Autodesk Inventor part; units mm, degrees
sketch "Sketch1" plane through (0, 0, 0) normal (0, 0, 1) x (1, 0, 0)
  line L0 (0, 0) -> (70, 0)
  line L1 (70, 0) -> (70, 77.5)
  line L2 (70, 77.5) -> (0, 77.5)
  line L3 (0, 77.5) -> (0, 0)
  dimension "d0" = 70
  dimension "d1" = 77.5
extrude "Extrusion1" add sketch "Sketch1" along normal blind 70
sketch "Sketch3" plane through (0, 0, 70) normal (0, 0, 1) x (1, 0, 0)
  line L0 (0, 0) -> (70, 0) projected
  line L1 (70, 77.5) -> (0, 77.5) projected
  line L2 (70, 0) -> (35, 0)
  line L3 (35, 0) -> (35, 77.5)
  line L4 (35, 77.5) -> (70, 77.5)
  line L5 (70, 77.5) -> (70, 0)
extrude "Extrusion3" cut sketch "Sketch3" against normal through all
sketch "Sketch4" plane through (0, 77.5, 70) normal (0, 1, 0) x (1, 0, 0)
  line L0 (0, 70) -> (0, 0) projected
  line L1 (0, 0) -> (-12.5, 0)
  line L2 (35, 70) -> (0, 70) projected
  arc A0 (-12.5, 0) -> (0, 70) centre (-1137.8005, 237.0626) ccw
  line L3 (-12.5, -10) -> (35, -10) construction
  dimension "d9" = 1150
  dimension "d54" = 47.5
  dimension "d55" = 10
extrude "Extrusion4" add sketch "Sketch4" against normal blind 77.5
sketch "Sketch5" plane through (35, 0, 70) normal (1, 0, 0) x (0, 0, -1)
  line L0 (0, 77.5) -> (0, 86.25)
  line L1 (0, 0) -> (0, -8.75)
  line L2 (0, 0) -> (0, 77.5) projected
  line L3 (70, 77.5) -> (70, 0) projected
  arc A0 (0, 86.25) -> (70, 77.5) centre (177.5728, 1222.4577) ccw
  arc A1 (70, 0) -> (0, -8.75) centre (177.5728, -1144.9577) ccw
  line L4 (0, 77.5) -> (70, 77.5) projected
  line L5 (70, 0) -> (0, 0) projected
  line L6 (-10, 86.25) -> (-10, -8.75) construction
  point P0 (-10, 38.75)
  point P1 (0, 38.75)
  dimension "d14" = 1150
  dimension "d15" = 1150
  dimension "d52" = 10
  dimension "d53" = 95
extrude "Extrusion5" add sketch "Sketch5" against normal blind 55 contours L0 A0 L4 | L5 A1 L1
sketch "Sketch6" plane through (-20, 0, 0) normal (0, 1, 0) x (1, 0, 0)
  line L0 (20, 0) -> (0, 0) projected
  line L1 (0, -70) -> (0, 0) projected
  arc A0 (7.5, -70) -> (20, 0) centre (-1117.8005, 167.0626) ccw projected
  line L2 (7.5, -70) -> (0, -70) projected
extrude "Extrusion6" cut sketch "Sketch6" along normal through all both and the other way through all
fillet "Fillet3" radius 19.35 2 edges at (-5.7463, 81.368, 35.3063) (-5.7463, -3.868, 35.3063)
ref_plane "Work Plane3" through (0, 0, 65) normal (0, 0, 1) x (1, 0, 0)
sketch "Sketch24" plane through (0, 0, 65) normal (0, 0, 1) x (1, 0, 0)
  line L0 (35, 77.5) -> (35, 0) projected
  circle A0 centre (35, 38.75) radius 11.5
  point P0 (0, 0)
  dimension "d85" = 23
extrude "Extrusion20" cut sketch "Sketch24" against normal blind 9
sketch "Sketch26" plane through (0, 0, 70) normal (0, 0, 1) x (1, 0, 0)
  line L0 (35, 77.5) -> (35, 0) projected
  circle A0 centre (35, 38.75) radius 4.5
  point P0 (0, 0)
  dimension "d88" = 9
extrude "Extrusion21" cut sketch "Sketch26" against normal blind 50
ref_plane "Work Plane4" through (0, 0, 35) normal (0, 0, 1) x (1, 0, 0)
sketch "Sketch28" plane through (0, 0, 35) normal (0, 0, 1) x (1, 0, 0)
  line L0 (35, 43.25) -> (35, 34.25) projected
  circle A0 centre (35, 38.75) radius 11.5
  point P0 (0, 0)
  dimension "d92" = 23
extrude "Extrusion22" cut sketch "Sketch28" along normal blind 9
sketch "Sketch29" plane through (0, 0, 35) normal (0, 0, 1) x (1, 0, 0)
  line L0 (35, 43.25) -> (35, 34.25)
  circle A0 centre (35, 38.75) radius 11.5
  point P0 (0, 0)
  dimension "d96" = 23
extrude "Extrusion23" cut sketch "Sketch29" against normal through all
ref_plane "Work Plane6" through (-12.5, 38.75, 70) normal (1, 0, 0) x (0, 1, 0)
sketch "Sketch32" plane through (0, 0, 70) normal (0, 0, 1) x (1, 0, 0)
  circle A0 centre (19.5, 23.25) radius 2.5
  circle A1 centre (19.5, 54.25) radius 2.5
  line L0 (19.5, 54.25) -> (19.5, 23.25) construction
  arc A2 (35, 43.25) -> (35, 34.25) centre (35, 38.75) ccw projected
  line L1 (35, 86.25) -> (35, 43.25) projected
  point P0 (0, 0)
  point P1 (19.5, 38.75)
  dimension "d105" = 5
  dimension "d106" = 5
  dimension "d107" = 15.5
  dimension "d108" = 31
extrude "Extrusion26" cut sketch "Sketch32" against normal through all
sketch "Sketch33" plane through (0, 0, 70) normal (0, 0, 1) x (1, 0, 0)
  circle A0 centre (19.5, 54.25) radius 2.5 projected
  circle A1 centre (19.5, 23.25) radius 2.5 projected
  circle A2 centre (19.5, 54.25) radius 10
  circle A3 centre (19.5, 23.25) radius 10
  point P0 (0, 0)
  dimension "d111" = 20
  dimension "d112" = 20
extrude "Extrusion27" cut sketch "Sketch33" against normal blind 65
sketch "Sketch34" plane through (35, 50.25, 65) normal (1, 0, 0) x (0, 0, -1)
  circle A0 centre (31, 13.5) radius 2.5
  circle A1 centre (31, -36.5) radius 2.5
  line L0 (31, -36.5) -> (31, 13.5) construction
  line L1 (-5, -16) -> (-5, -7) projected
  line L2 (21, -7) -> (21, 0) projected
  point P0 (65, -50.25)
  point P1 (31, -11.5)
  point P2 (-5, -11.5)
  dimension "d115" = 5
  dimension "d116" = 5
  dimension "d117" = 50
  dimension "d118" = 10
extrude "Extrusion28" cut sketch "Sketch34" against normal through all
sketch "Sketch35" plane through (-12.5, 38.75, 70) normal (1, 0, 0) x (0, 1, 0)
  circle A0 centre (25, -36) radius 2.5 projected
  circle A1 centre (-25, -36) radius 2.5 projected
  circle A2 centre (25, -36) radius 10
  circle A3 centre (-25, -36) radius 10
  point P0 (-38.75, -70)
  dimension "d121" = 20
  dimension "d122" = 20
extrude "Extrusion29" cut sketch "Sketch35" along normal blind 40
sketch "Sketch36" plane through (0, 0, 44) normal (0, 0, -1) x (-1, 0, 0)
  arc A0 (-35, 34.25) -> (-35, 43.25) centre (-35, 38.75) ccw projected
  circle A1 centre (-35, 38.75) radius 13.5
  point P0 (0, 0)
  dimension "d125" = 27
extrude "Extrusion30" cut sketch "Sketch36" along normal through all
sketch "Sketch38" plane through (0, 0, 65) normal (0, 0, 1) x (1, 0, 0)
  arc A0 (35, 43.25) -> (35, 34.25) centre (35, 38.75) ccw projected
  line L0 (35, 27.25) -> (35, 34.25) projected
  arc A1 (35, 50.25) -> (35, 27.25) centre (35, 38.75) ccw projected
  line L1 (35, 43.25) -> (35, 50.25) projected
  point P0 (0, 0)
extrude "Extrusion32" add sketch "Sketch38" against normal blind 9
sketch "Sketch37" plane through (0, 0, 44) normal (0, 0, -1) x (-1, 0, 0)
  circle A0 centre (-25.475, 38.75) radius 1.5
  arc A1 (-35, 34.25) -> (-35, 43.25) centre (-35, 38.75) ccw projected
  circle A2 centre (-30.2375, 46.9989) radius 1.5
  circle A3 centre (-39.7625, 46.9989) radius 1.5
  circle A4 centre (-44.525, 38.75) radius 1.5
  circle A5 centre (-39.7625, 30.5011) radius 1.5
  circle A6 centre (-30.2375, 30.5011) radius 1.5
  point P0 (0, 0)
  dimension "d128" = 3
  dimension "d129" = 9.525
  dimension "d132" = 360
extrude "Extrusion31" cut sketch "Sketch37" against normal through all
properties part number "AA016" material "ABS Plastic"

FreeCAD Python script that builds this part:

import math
import FreeCAD as App
import Part
import Sketcher
from FreeCAD import Vector
Q = App.Units.Quantity


def edges_at(feature, points):
    """Names of the edges that pass closest to the given points."""
    edges = feature.Shape.Edges
    near = lambda p: min(range(len(edges)), key=lambda i: edges[i].distToShape(Part.Vertex(*p))[0])
    return sorted({f"Edge{near(p) + 1}" for p in points})


def add_polygon(sketch, points):
    """Adds a closed chain of lines whose ends are joined by coincident constraints."""
    first, n = sketch.GeometryCount, len(points)
    for a, b in zip(points, points[1:] + points[:1]):
        sketch.addGeometry(Part.LineSegment(App.Vector(*a, 0), App.Vector(*b, 0)), False)
    for i in range(n):
        sketch.addConstraint(Sketcher.Constraint("Coincident", first + i, 2, first + (i + 1) % n, 1))

doc = App.newDocument("Part")
params = doc.addObject("Spreadsheet::Sheet", "Params")
for row, (alias, value) in enumerate([
    ("sketch1_width", "70 mm"),
    ("sketch1_height", "77.5 mm"),
    ("pad1_length", "70 mm"),
    ("sketch2_width", "35 mm"),
    ("sketch2_height", "77.5 mm"),
    ("sketch3_radius", "1150 mm"),
    ("sketch3_height", "70 mm"),
    ("sketch3_width", "12.5 mm"),
    ("pad2_length", "77.5 mm"),
    ("sketch4_height", "70 mm"),
    ("sketch4_width", "8.75 mm"),
    ("pad3_length", "55 mm"),
    ("sketch5_radius", "1150 mm"),
    ("sketch5_width", "20 mm"),
    ("sketch5_height", "70 mm"),
    ("sketch5_width2", "7.5 mm"),
    ("fillet_radius", "19.35 mm"),
    ("sketch6_diameter", "23 mm"),
    ("pocket3_length", "9 mm"),
    ("sketch7_diameter", "9 mm"),
    ("pocket4_length", "50 mm"),
    ("sketch8_diameter", "23 mm"),
    ("pocket5_length", "9 mm"),
    ("sketch9_diameter", "23 mm"),
    ("sketch10_diameter", "5 mm"),
    ("sketch11_diameter", "20 mm"),
    ("sketch11_diameter2", "5 mm"),
    ("pocket8_length", "65 mm"),
    ("sketch12_diameter", "5 mm"),
    ("sketch13_diameter", "20 mm"),
    ("sketch13_diameter2", "5 mm"),
    ("pocket10_length", "40 mm"),
    ("sketch14_diameter", "27 mm"),
    ("sketch15_radius", "4.5 mm"),
    ("sketch15_radius2", "11.5 mm"),
    ("pad4_length", "9 mm"),
    ("sketch16_diameter", "3 mm"),
], start=1):
    params.set(f"A{row}", alias)
    params.set(f"B{row}", "=" + value)
    params.setAlias(f"B{row}", alias)

body = doc.addObject("PartDesign::Body", "Body")

# Sketch on XY plane
sketch1 = body.newObject("Sketcher::SketchObject", "Sketch")
sketch1.AttachmentSupport = (doc.getObject("XY_Plane"), [""])
sketch1.MapMode = "FlatFace"
add_polygon(sketch1, [(0, 78), (0, 0), (70, 0), (70, 78)])  # lines 0-3
sketch1.addConstraint([
    Sketcher.Constraint("Vertical", 0),
    Sketcher.Constraint("Horizontal", 1),
    Sketcher.Constraint("Vertical", 2),
    Sketcher.Constraint("Horizontal", 3),
    Sketcher.Constraint("Coincident", 0, 2, -1, 1),
    Sketcher.Constraint("DistanceX", 1, 1, 1, 2, Q("70 mm")),
    Sketcher.Constraint("DistanceY", 0, 2, 0, 1, Q("77.5 mm")),
])
sketch1.setExpression("Constraints[9]", "Params.sketch1_width")
sketch1.setExpression("Constraints[10]", "Params.sketch1_height")
pad1 = body.newObject("PartDesign::Pad", "Pad")
pad1.Profile = sketch1
pad1.setExpression("Length", "Params.pad1_length")

# Sketch on XY plane
sketch2 = body.newObject("Sketcher::SketchObject", "Sketch001")
sketch2.AttachmentSupport = (doc.getObject("XY_Plane"), [""])
sketch2.MapMode = "FlatFace"
sketch2.AttachmentOffset = App.Placement(Vector(0, 0, 70), App.Rotation())
add_polygon(sketch2, [(35, 78), (35, 0), (70, 0), (70, 78)])  # lines 0-3
sketch2.addConstraint([
    Sketcher.Constraint("Vertical", 0),
    Sketcher.Constraint("Horizontal", 1),
    Sketcher.Constraint("Vertical", 2),
    Sketcher.Constraint("Horizontal", 3),
    Sketcher.Constraint("PointOnObject", 0, 2, -1),
    Sketcher.Constraint("DistanceX", 1, 1, 1, 2, Q("35 mm")),
    Sketcher.Constraint("DistanceY", 0, 2, 0, 1, Q("77.5 mm")),
    Sketcher.Constraint("DistanceX", -1, 1, 0, 2, Q("35 mm")),
])
sketch2.setExpression("Constraints[9]", "Params.sketch2_width")
sketch2.setExpression("Constraints[10]", "Params.sketch2_height")
pocket1 = body.newObject("PartDesign::Pocket", "Pocket")
pocket1.Profile = sketch2
pocket1.Type = "ThroughAll"

# Sketch on XZ plane
sketch3 = body.newObject("Sketcher::SketchObject", "Sketch002")
sketch3.AttachmentSupport = (doc.getObject("XZ_Plane"), [""])
sketch3.MapMode = "FlatFace"
sketch3.AttachmentOffset = App.Placement(Vector(0, 0, -77.5), App.Rotation())
sketch3.addGeometry([
    Part.LineSegment(Vector(0, 70, 0), Vector(0, 0, 0)),
    Part.ArcOfCircle(Part.Circle(Vector(-1138, -167, 0), Vector(0, 0, 1), 1150), math.radians(8.35), math.radians(11.9)),
    Part.LineSegment(Vector(-12, 70, 0), Vector(0, 70, 0)),
], False)
sketch3.addConstraint([
    Sketcher.Constraint("Coincident", 0, 2, 1, 1),
    Sketcher.Constraint("Coincident", 1, 2, 2, 1),
    Sketcher.Constraint("Coincident", 2, 2, 0, 1),
    Sketcher.Constraint("Vertical", 0),
    Sketcher.Constraint("Horizontal", 2),
    Sketcher.Constraint("Coincident", 0, 2, -1, 1),
    Sketcher.Constraint("Radius", 1, Q("1150 mm")),
    Sketcher.Constraint("DistanceY", 0, 2, 0, 1, Q("70 mm")),
    Sketcher.Constraint("DistanceX", 2, 1, 2, 2, Q("12.5 mm")),
])
sketch3.setExpression("Constraints[6]", "Params.sketch3_radius")
sketch3.setExpression("Constraints[7]", "Params.sketch3_height")
sketch3.setExpression("Constraints[8]", "Params.sketch3_width")
pad2 = body.newObject("PartDesign::Pad", "Pad001")
pad2.Profile = sketch3
pad2.setExpression("Length", "Params.pad2_length")

# Sketch on YZ plane
sketch4 = body.newObject("Sketcher::SketchObject", "Sketch003")
sketch4.AttachmentSupport = (doc.getObject("YZ_Plane"), [""])
sketch4.MapMode = "FlatFace"
sketch4.AttachmentOffset = App.Placement(Vector(0, 0, 35), App.Rotation())
sketch4.addGeometry([
    Part.LineSegment(Vector(86, 70, 0), Vector(78, 70, 0)),  # 0
    Part.LineSegment(Vector(78, 70, 0), Vector(78, 0, 0)),  # 1
    Part.ArcOfCircle(Part.Circle(Vector(1222, -108, 0), Vector(0, 0, 1), 1150), math.radians(171.12), math.radians(174.63)),  # 2
    Part.LineSegment(Vector(0, 0, 0), Vector(0, 70, 0)),  # 3
    Part.LineSegment(Vector(0, 70, 0), Vector(-9, 70, 0)),  # 4
    Part.ArcOfCircle(Part.Circle(Vector(-1145, -108, 0), Vector(0, 0, 1), 1150), math.radians(5.37), math.radians(8.88)),  # 5
], False)
sketch4.addConstraint([
    Sketcher.Constraint("Coincident", 0, 2, 1, 1),
    Sketcher.Constraint("Coincident", 1, 2, 2, 2),
    Sketcher.Constraint("Coincident", 2, 1, 0, 1),
    Sketcher.Constraint("Coincident", 3, 2, 4, 1),
    Sketcher.Constraint("Coincident", 4, 2, 5, 2),
    Sketcher.Constraint("Coincident", 5, 1, 3, 1),
    Sketcher.Constraint("Horizontal", 0),
    Sketcher.Constraint("Vertical", 1),
    Sketcher.Constraint("Vertical", 3),
    Sketcher.Constraint("Horizontal", 4),
    Sketcher.Constraint("PointOnObject", 1, 2, -1),
    Sketcher.Constraint("PointOnObject", 3, 2, -2),
    Sketcher.Constraint("Equal", 0, 4),
    Sketcher.Constraint("Equal", 1, 3),
    Sketcher.Constraint("DistanceX", 4, 2, 2, 1, Q("95 mm")),
    Sketcher.Constraint("DistanceY", 1, 2, 1, 1, Q("70 mm")),
    Sketcher.Constraint("DistanceY", -1, 1, 3, 2, Q("70 mm")),
    Sketcher.Constraint("DistanceX", 0, 2, 0, 1, Q("8.75 mm")),
    Sketcher.Constraint("Radius", 2, Q("1150.0024 mm")),
    Sketcher.Constraint("Radius", 5, Q("1149.9976 mm")),
])
sketch4.setExpression("Constraints[15]", "Params.sketch4_height")
sketch4.setExpression("Constraints[17]", "Params.sketch4_width")
pad3 = body.newObject("PartDesign::Pad", "Pad002")
pad3.Profile = sketch4
pad3.setExpression("Length", "Params.pad3_length")
pad3.Reversed = True

# Sketch on XZ plane
sketch5 = body.newObject("Sketcher::SketchObject", "Sketch004")
sketch5.AttachmentSupport = (doc.getObject("XZ_Plane"), [""])
sketch5.MapMode = "FlatFace"
sketch5.addGeometry([
    Part.ArcOfCircle(Part.Circle(Vector(-1138, -167, 0), Vector(0, 0, 1), 1150), math.radians(8.35), math.radians(11.9)),
    Part.LineSegment(Vector(0, 0, 0), Vector(-20, 0, 0)),
    Part.LineSegment(Vector(-20, 0, 0), Vector(-20, 70, 0)),
    Part.LineSegment(Vector(-20, 70, 0), Vector(-12, 70, 0)),
], False)
sketch5.addConstraint([
    Sketcher.Constraint("Coincident", 0, 1, 1, 1),
    Sketcher.Constraint("Coincident", 1, 2, 2, 1),
    Sketcher.Constraint("Coincident", 2, 2, 3, 1),
    Sketcher.Constraint("Coincident", 3, 2, 0, 2),
    Sketcher.Constraint("Horizontal", 1),
    Sketcher.Constraint("Vertical", 2),
    Sketcher.Constraint("Horizontal", 3),
    Sketcher.Constraint("PointOnObject", 1, 2, -1),
    Sketcher.Constraint("Radius", 0, Q("1150 mm")),
    Sketcher.Constraint("DistanceX", 1, 2, 1, 1, Q("20 mm")),
    Sketcher.Constraint("DistanceY", 2, 1, 2, 2, Q("70 mm")),
    Sketcher.Constraint("DistanceX", 3, 1, 3, 2, Q("7.5 mm")),
    Sketcher.Constraint("DistanceX", 1, 2, -1, 1, Q("20 mm")),
])
sketch5.setExpression("Constraints[8]", "Params.sketch5_radius")
sketch5.setExpression("Constraints[9]", "Params.sketch5_width")
sketch5.setExpression("Constraints[10]", "Params.sketch5_height")
sketch5.setExpression("Constraints[11]", "Params.sketch5_width2")
pocket2 = body.newObject("PartDesign::Pocket", "Pocket001")
pocket2.Profile = sketch5
pocket2.Type = "ThroughAll"
pocket2.Midplane = True
doc.recompute()

fillet = body.newObject("PartDesign::Fillet", "Fillet")
fillet.Base = (pocket2, edges_at(pocket2, [(-5.746, 81.368, 35.306), (-5.746, -3.868, 35.306)]))
fillet.setExpression("Radius", "Params.fillet_radius")

# Sketch on XY plane
sketch6 = body.newObject("Sketcher::SketchObject", "Sketch005")
sketch6.AttachmentSupport = (doc.getObject("XY_Plane"), [""])
sketch6.MapMode = "FlatFace"
sketch6.AttachmentOffset = App.Placement(Vector(0, 0, 65), App.Rotation())
sketch6.addGeometry(Part.Circle(Vector(35, 39, 0), Vector(0, 0, 1), 12), False)
sketch6.addConstraint([
    Sketcher.Constraint("Diameter", 0, Q("23 mm")),
    Sketcher.Constraint("DistanceX", -1, 1, 0, 3, Q("35 mm")),
    Sketcher.Constraint("DistanceY", -1, 1, 0, 3, Q("38.75 mm")),
])
sketch6.setExpression("Constraints[0]", "Params.sketch6_diameter")
pocket3 = body.newObject("PartDesign::Pocket", "Pocket002")
pocket3.Profile = sketch6
pocket3.setExpression("Length", "Params.pocket3_length")

# Sketch on XY plane
sketch7 = body.newObject("Sketcher::SketchObject", "Sketch006")
sketch7.AttachmentSupport = (doc.getObject("XY_Plane"), [""])
sketch7.MapMode = "FlatFace"
sketch7.AttachmentOffset = App.Placement(Vector(0, 0, 70), App.Rotation())
sketch7.addGeometry(Part.Circle(Vector(35, 38.8, 0), Vector(0, 0, 1), 4.5), False)
sketch7.addConstraint([
    Sketcher.Constraint("Diameter", 0, Q("9 mm")),
    Sketcher.Constraint("DistanceX", -1, 1, 0, 3, Q("35 mm")),
    Sketcher.Constraint("DistanceY", -1, 1, 0, 3, Q("38.75 mm")),
])
sketch7.setExpression("Constraints[0]", "Params.sketch7_diameter")
pocket4 = body.newObject("PartDesign::Pocket", "Pocket003")
pocket4.Profile = sketch7
pocket4.setExpression("Length", "Params.pocket4_length")

# Sketch on XY plane
sketch8 = body.newObject("Sketcher::SketchObject", "Sketch007")
sketch8.AttachmentSupport = (doc.getObject("XY_Plane"), [""])
sketch8.MapMode = "FlatFace"
sketch8.AttachmentOffset = App.Placement(Vector(0, 0, 35), App.Rotation())
sketch8.addGeometry(Part.Circle(Vector(35, 39, 0), Vector(0, 0, 1), 12), False)
sketch8.addConstraint([
    Sketcher.Constraint("Diameter", 0, Q("23 mm")),
    Sketcher.Constraint("DistanceX", -1, 1, 0, 3, Q("35 mm")),
    Sketcher.Constraint("DistanceY", -1, 1, 0, 3, Q("38.75 mm")),
])
sketch8.setExpression("Constraints[0]", "Params.sketch8_diameter")
pocket5 = body.newObject("PartDesign::Pocket", "Pocket004")
pocket5.Profile = sketch8
pocket5.setExpression("Length", "Params.pocket5_length")
pocket5.Reversed = True

# Sketch on XY plane
sketch9 = body.newObject("Sketcher::SketchObject", "Sketch008")
sketch9.AttachmentSupport = (doc.getObject("XY_Plane"), [""])
sketch9.MapMode = "FlatFace"
sketch9.AttachmentOffset = App.Placement(Vector(0, 0, 35), App.Rotation())
sketch9.addGeometry(Part.Circle(Vector(35, 39, 0), Vector(0, 0, 1), 12), False)
sketch9.addConstraint([
    Sketcher.Constraint("Diameter", 0, Q("23 mm")),
    Sketcher.Constraint("DistanceX", -1, 1, 0, 3, Q("35 mm")),
    Sketcher.Constraint("DistanceY", -1, 1, 0, 3, Q("38.75 mm")),
])
sketch9.setExpression("Constraints[0]", "Params.sketch9_diameter")
pocket6 = body.newObject("PartDesign::Pocket", "Pocket005")
pocket6.Profile = sketch9
pocket6.Type = "ThroughAll"

# Sketch on XY plane
sketch10 = body.newObject("Sketcher::SketchObject", "Sketch009")
sketch10.AttachmentSupport = (doc.getObject("XY_Plane"), [""])
sketch10.MapMode = "FlatFace"
sketch10.AttachmentOffset = App.Placement(Vector(0, 0, 70), App.Rotation())
sketch10.addGeometry([
    Part.Circle(Vector(19.5, 23.2, 0), Vector(0, 0, 1), 2.5),
    Part.Circle(Vector(19.5, 54.2, 0), Vector(0, 0, 1), 2.5),
], False)
sketch10.addConstraint([
    Sketcher.Constraint("Equal", 0, 1),
    Sketcher.Constraint("Vertical", 0, 3, 1, 3),
    Sketcher.Constraint("Diameter", 0, Q("5 mm")),
    Sketcher.Constraint("DistanceY", 0, 3, 1, 3, Q("31 mm")),
    Sketcher.Constraint("DistanceX", -1, 1, 0, 3, Q("19.5 mm")),
    Sketcher.Constraint("DistanceY", -1, 1, 0, 3, Q("23.25 mm")),
])
sketch10.setExpression("Constraints[2]", "Params.sketch10_diameter")
pocket7 = body.newObject("PartDesign::Pocket", "Pocket006")
pocket7.Profile = sketch10
pocket7.Type = "ThroughAll"

# Sketch on XY plane
sketch11 = body.newObject("Sketcher::SketchObject", "Sketch010")
sketch11.AttachmentSupport = (doc.getObject("XY_Plane"), [""])
sketch11.MapMode = "FlatFace"
sketch11.AttachmentOffset = App.Placement(Vector(0, 0, 70), App.Rotation())
sketch11.addGeometry([
    Part.Circle(Vector(19.5, 54.2, 0), Vector(0, 0, 1), 10),
    Part.Circle(Vector(19.5, 54.2, 0), Vector(0, 0, 1), 2.5),
    Part.Circle(Vector(19.5, 23.2, 0), Vector(0, 0, 1), 10),
    Part.Circle(Vector(19.5, 23.2, 0), Vector(0, 0, 1), 2.5),
], False)
sketch11.addConstraint([
    Sketcher.Constraint("Coincident", 1, 3, 0, 3),
    Sketcher.Constraint("Coincident", 3, 3, 2, 3),
    Sketcher.Constraint("Equal", 0, 2),
    Sketcher.Constraint("Equal", 1, 3),
    Sketcher.Constraint("Vertical", 1, 3, 2, 3),
    Sketcher.Constraint("Diameter", 0, Q("20 mm")),
    Sketcher.Constraint("Diameter", 1, Q("5 mm")),
    Sketcher.Constraint("DistanceY", 2, 3, 0, 3, Q("31 mm")),
    Sketcher.Constraint("DistanceX", -1, 1, 0, 3, Q("19.5 mm")),
    Sketcher.Constraint("DistanceY", -1, 1, 0, 3, Q("54.25 mm")),
])
sketch11.setExpression("Constraints[5]", "Params.sketch11_diameter")
sketch11.setExpression("Constraints[6]", "Params.sketch11_diameter2")
pocket8 = body.newObject("PartDesign::Pocket", "Pocket007")
pocket8.Profile = sketch11
pocket8.setExpression("Length", "Params.pocket8_length")

# Sketch on YZ plane
sketch12 = body.newObject("Sketcher::SketchObject", "Sketch011")
sketch12.AttachmentSupport = (doc.getObject("YZ_Plane"), [""])
sketch12.MapMode = "FlatFace"
sketch12.AttachmentOffset = App.Placement(Vector(0, 0, 35), App.Rotation())
sketch12.addGeometry([
    Part.Circle(Vector(63.8, 34, 0), Vector(0, 0, 1), 2.5),
    Part.Circle(Vector(13.8, 34, 0), Vector(0, 0, 1), 2.5),
], False)
sketch12.addConstraint([
    Sketcher.Constraint("Equal", 0, 1),
    Sketcher.Constraint("Horizontal", 0, 3, 1, 3),
    Sketcher.Constraint("Diameter", 0, Q("5 mm")),
    Sketcher.Constraint("DistanceX", 1, 3, 0, 3, Q("50 mm")),
    Sketcher.Constraint("DistanceY", -1, 1, 0, 3, Q("34 mm")),
    Sketcher.Constraint("DistanceX", -1, 1, 0, 3, Q("63.75 mm")),
])
sketch12.setExpression("Constraints[2]", "Params.sketch12_diameter")
pocket9 = body.newObject("PartDesign::Pocket", "Pocket008")
pocket9.Profile = sketch12
pocket9.Type = "ThroughAll"

# Sketch on YZ plane
sketch13 = body.newObject("Sketcher::SketchObject", "Sketch012")
sketch13.AttachmentSupport = (doc.getObject("YZ_Plane"), [""])
sketch13.MapMode = "FlatFace"
sketch13.AttachmentOffset = App.Placement(Vector(0, 0, -12.5), App.Rotation())
sketch13.addGeometry([
    Part.Circle(Vector(63.8, 34, 0), Vector(0, 0, 1), 10),
    Part.Circle(Vector(63.8, 34, 0), Vector(0, 0, 1), 2.5),
    Part.Circle(Vector(13.8, 34, 0), Vector(0, 0, 1), 10),
    Part.Circle(Vector(13.8, 34, 0), Vector(0, 0, 1), 2.5),
], False)
sketch13.addConstraint([
    Sketcher.Constraint("Coincident", 1, 3, 0, 3),
    Sketcher.Constraint("Coincident", 3, 3, 2, 3),
    Sketcher.Constraint("Equal", 0, 2),
    Sketcher.Constraint("Equal", 1, 3),
    Sketcher.Constraint("Horizontal", 1, 3, 2, 3),
    Sketcher.Constraint("Diameter", 0, Q("20 mm")),
    Sketcher.Constraint("Diameter", 1, Q("5 mm")),
    Sketcher.Constraint("DistanceY", -1, 1, 0, 3, Q("34 mm")),
    Sketcher.Constraint("DistanceX", 2, 3, 0, 3, Q("50 mm")),
    Sketcher.Constraint("DistanceX", -1, 1, 0, 3, Q("63.75 mm")),
])
sketch13.setExpression("Constraints[5]", "Params.sketch13_diameter")
sketch13.setExpression("Constraints[6]", "Params.sketch13_diameter2")
pocket10 = body.newObject("PartDesign::Pocket", "Pocket009")
pocket10.Profile = sketch13
pocket10.setExpression("Length", "Params.pocket10_length")
pocket10.Reversed = True

# Sketch on XY plane
sketch14 = body.newObject("Sketcher::SketchObject", "Sketch013")
sketch14.AttachmentSupport = (doc.getObject("XY_Plane"), [""])
sketch14.MapMode = "FlatFace"
sketch14.AttachmentOffset = App.Placement(Vector(0, 0, 44), App.Rotation())
sketch14.addGeometry(Part.Circle(Vector(35, 39, 0), Vector(0, 0, 1), 14), False)
sketch14.addConstraint([
    Sketcher.Constraint("Diameter", 0, Q("27 mm")),
    Sketcher.Constraint("DistanceX", -1, 1, 0, 3, Q("35 mm")),
    Sketcher.Constraint("DistanceY", -1, 1, 0, 3, Q("38.75 mm")),
])
sketch14.setExpression("Constraints[0]", "Params.sketch14_diameter")
pocket11 = body.newObject("PartDesign::Pocket", "Pocket010")
pocket11.Profile = sketch14
pocket11.Type = "ThroughAll"

# Sketch on XY plane
sketch15 = body.newObject("Sketcher::SketchObject", "Sketch014")
sketch15.AttachmentSupport = (doc.getObject("XY_Plane"), [""])
sketch15.MapMode = "FlatFace"
sketch15.AttachmentOffset = App.Placement(Vector(0, 0, 65), App.Rotation())
sketch15.addGeometry([
    Part.ArcOfCircle(Part.Circle(Vector(35, 38.8, 0), Vector(0, 0, 1), 4.5), math.radians(90), math.radians(270)),
    Part.LineSegment(Vector(35, 43.2, 0), Vector(35, 50.2, 0)),
    Part.ArcOfCircle(Part.Circle(Vector(35, 38.8, 0), Vector(0, 0, 1), 11.5), math.radians(90), math.radians(270)),
    Part.LineSegment(Vector(35, 27.2, 0), Vector(35, 34.2, 0)),
], False)
sketch15.addConstraint([
    Sketcher.Constraint("Coincident", 0, 1, 1, 1),
    Sketcher.Constraint("Coincident", 1, 2, 2, 1),
    Sketcher.Constraint("Coincident", 2, 2, 3, 1),
    Sketcher.Constraint("Coincident", 3, 2, 0, 2),
    Sketcher.Constraint("Vertical", 1),
    Sketcher.Constraint("Vertical", 3),
    Sketcher.Constraint("Coincident", 2, 3, 0, 3),
    Sketcher.Constraint("Vertical", 2, 3, 0, 1),
    Sketcher.Constraint("Vertical", 1, 2, 2, 2),
    Sketcher.Constraint("Radius", 0, Q("4.5 mm")),
    Sketcher.Constraint("Radius", 2, Q("11.5 mm")),
    Sketcher.Constraint("DistanceX", -1, 1, 0, 3, Q("35 mm")),
    Sketcher.Constraint("DistanceY", -1, 1, 0, 3, Q("38.75 mm")),
])
sketch15.setExpression("Constraints[9]", "Params.sketch15_radius")
sketch15.setExpression("Constraints[10]", "Params.sketch15_radius2")
pad4 = body.newObject("PartDesign::Pad", "Pad003")
pad4.Profile = sketch15
pad4.setExpression("Length", "Params.pad4_length")
pad4.Reversed = True

# Sketch on XY plane
sketch16 = body.newObject("Sketcher::SketchObject", "Sketch015")
sketch16.AttachmentSupport = (doc.getObject("XY_Plane"), [""])
sketch16.MapMode = "FlatFace"
sketch16.AttachmentOffset = App.Placement(Vector(0, 0, 44), App.Rotation())
sketch16.addGeometry([
    Part.Circle(Vector(25.5, 38.8, 0), Vector(0, 0, 1), 1.5),  # 0
    Part.Circle(Vector(30.2, 47, 0), Vector(0, 0, 1), 1.5),  # 1
    Part.Circle(Vector(39.8, 47, 0), Vector(0, 0, 1), 1.5),  # 2
    Part.Circle(Vector(44.5, 38.8, 0), Vector(0, 0, 1), 1.5),  # 3
    Part.Circle(Vector(39.8, 30.5, 0), Vector(0, 0, 1), 1.5),  # 4
    Part.Circle(Vector(30.2, 30.5, 0), Vector(0, 0, 1), 1.5),  # 5
], False)
sketch16.addConstraint([
    Sketcher.Constraint("Equal", 0, 1),
    Sketcher.Constraint("Equal", 1, 2),
    Sketcher.Constraint("Equal", 2, 3),
    Sketcher.Constraint("Equal", 3, 4),
    Sketcher.Constraint("Equal", 4, 5),
    Sketcher.Constraint("Horizontal", 1, 3, 2, 3),
    Sketcher.Constraint("Horizontal", 0, 3, 3, 3),
    Sketcher.Constraint("Horizontal", 4, 3, 5, 3),
    Sketcher.Constraint("Vertical", 2, 3, 4, 3),
    Sketcher.Constraint("Vertical", 1, 3, 5, 3),
    Sketcher.Constraint("Diameter", 0, Q("3 mm")),
    Sketcher.Constraint("DistanceX", 1, 3, 2, 3, Q("9.525 mm")),
    Sketcher.Constraint("DistanceY", -1, 1, 0, 3, Q("38.75 mm")),
    Sketcher.Constraint("DistanceX", 0, 3, 3, 3, Q("19.05 mm")),
    Sketcher.Constraint("DistanceX", -1, 1, 0, 3, Q("25.475 mm")),
    Sketcher.Constraint("DistanceY", -1, 1, 1, 3, Q("46.999 mm")),
    Sketcher.Constraint("DistanceY", -1, 1, 4, 3, Q("30.501 mm")),
    Sketcher.Constraint("DistanceX", -1, 1, 1, 3, Q("30.2375 mm")),
])
sketch16.setExpression("Constraints[10]", "Params.sketch16_diameter")
pocket12 = body.newObject("PartDesign::Pocket", "Pocket011")
pocket12.Profile = sketch16
pocket12.Type = "ThroughAll"
pocket12.Reversed = True

doc.recompute()
